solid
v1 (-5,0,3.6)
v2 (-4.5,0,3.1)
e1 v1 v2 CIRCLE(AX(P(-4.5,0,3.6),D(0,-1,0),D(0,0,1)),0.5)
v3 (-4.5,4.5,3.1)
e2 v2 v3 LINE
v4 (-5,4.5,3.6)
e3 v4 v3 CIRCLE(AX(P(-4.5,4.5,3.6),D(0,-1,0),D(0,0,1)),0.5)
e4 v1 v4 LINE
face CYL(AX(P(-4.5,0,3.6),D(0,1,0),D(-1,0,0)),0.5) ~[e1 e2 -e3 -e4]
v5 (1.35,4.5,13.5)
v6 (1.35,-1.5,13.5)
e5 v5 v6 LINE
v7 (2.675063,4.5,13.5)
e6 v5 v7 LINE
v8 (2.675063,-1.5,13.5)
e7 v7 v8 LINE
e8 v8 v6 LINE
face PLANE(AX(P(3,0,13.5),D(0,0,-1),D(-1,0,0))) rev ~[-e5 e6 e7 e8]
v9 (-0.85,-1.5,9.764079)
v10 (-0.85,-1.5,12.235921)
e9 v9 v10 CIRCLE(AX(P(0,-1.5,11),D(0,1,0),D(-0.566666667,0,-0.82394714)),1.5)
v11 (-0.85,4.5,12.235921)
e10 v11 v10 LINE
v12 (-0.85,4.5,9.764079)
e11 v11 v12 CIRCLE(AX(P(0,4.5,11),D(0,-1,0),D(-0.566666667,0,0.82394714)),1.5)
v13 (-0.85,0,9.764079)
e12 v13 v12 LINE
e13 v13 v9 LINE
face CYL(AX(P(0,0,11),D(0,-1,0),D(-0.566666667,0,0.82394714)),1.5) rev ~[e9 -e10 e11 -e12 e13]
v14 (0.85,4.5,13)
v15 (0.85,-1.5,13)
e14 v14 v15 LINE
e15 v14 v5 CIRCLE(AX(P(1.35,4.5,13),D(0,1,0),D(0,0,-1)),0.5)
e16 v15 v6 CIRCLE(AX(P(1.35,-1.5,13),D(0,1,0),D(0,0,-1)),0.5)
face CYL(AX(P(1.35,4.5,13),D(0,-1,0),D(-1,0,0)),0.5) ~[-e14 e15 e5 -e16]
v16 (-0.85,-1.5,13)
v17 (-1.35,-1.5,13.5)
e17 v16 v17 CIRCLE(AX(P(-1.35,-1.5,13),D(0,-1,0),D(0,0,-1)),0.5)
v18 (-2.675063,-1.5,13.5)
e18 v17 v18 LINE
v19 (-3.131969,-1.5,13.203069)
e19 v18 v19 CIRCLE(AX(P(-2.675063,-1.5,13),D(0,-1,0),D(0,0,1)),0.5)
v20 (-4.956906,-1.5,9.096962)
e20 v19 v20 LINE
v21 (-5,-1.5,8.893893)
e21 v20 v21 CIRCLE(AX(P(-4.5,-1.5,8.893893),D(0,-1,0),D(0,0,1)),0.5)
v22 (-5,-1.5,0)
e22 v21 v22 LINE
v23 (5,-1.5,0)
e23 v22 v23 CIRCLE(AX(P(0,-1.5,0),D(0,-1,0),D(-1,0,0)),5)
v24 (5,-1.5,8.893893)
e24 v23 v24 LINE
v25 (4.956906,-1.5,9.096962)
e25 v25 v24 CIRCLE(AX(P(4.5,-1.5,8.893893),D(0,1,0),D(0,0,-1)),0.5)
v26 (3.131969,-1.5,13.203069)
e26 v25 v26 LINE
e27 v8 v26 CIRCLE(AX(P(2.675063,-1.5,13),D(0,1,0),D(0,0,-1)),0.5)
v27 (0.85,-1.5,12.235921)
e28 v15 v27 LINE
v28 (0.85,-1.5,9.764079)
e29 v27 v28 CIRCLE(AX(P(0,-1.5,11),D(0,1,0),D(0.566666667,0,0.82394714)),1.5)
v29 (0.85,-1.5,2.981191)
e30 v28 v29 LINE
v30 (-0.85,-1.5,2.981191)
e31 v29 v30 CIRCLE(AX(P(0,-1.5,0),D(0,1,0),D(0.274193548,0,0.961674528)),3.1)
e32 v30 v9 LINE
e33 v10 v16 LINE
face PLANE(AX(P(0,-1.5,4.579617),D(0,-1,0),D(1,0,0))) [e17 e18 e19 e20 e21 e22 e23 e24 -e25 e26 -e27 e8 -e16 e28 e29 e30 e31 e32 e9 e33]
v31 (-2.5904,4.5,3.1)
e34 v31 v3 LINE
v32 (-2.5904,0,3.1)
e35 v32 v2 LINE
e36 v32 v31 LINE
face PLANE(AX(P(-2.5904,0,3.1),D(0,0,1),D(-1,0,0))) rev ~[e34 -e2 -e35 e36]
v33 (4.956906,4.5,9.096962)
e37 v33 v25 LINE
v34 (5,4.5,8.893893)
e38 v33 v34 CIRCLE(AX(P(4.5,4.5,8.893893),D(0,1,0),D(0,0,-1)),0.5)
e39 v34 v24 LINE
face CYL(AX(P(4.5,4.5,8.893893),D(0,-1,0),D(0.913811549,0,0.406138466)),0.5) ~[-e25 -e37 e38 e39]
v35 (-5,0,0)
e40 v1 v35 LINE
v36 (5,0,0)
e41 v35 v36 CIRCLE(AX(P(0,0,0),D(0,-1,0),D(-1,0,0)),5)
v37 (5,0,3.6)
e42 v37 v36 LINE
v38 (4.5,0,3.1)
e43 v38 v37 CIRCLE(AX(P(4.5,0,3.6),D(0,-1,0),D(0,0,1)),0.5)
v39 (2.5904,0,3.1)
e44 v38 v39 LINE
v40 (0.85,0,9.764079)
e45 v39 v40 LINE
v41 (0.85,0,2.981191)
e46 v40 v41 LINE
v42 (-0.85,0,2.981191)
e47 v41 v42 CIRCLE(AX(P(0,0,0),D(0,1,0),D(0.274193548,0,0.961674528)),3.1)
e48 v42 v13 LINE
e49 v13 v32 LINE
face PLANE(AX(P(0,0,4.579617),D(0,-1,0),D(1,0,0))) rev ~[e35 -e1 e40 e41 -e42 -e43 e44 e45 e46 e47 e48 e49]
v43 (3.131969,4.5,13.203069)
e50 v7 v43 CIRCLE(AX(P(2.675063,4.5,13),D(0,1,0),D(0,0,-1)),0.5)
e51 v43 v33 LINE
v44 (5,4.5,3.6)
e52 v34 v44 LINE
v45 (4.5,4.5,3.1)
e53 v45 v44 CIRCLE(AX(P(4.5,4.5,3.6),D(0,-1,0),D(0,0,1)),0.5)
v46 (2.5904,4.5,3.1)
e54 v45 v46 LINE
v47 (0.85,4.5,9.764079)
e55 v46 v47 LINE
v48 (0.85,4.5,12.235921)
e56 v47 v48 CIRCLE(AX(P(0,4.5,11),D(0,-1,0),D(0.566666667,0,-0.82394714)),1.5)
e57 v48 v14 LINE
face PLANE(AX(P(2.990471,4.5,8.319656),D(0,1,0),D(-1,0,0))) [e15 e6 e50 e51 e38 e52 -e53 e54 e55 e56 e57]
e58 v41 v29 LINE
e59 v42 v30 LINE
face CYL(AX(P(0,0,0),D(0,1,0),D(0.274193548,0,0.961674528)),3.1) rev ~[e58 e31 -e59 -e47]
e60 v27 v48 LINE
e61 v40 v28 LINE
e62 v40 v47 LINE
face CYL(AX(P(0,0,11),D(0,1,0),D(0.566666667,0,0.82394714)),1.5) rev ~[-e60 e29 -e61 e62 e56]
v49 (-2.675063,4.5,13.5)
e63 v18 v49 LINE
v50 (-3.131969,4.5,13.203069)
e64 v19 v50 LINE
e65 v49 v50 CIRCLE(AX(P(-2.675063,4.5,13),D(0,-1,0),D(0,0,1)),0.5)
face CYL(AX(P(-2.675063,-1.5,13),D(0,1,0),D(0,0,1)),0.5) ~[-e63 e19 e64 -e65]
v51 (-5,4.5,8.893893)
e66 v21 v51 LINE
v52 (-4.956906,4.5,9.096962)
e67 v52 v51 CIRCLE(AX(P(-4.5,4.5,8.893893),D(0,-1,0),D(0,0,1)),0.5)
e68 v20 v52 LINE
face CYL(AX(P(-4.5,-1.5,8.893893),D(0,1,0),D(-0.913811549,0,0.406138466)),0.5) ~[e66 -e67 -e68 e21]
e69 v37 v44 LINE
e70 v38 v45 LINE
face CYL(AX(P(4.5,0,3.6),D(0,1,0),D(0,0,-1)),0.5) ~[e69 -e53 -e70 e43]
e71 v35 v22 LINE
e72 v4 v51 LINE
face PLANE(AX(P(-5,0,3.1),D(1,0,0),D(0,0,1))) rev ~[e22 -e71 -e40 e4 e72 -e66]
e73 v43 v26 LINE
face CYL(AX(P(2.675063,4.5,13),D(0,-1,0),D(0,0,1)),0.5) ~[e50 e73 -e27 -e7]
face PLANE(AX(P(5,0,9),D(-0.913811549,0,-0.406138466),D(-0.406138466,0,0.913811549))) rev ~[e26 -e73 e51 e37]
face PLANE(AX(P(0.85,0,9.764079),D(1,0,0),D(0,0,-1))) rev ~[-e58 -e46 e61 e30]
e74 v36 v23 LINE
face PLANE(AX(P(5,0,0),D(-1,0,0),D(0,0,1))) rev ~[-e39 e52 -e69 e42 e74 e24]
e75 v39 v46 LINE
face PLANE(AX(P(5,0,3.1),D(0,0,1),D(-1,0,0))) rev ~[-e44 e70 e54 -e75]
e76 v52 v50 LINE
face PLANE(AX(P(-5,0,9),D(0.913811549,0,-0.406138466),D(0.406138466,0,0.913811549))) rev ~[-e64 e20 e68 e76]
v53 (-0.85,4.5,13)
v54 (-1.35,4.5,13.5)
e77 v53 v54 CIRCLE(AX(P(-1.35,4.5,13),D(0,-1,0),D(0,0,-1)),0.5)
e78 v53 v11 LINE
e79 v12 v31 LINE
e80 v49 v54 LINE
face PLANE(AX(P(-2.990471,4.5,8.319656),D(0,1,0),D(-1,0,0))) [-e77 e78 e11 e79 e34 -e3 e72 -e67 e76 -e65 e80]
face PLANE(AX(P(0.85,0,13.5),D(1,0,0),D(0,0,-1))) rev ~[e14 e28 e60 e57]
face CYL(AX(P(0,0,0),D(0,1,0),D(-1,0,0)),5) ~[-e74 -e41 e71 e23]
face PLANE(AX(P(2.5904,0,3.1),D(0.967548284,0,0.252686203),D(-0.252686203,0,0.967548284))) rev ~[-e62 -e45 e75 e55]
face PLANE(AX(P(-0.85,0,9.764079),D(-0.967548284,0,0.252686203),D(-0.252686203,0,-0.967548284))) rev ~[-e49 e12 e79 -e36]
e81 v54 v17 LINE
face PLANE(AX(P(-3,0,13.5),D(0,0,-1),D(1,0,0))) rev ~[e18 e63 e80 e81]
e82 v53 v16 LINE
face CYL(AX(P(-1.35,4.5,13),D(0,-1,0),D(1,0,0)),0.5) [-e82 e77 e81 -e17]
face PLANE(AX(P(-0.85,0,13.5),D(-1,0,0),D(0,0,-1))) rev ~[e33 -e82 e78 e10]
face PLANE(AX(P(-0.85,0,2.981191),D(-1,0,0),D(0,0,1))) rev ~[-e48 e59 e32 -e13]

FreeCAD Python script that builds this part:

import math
import FreeCAD as App
import Part
import Sketcher
from FreeCAD import Vector


def edges_at(feature, points):
    """Names of the edges that pass closest to the given points."""
    edges = feature.Shape.Edges
    near = lambda p: min(range(len(edges)), key=lambda i: edges[i].distToShape(Part.Vertex(*p))[0])
    return sorted({f"Edge{near(p) + 1}" for p in points})

doc = App.newDocument("Part")
body = doc.addObject("PartDesign::Body", "Body")

# Sketch on XZ plane
sketch1 = body.newObject("Sketcher::SketchObject", "Sketch")
sketch1.AttachmentSupport = (doc.getObject("XZ_Plane"), [""])
sketch1.MapMode = "FlatFace"
sketch1.addGeometry(Part.ArcOfCircle(Part.Circle(Vector(0, 0, 0), Vector(0, 0, 1), 3.1), math.radians(106), math.radians(434)), False)
sketch1.addGeometry(Part.LineSegment(Vector(-0.8, 3, 0), Vector(-0.8, 9.8, 0)), False)
sketch1.addGeometry(Part.ArcOfCircle(Part.Circle(Vector(0, 11, 0), Vector(0, 0, 1), 1.5), math.radians(125), math.radians(235)), False)
sketch1.addGeometry(Part.LineSegment(Vector(-0.8, 12.2, 0), Vector(-0.8, 13.5, 0)), False)
sketch1.addGeometry(Part.LineSegment(Vector(-0.8, 13.5, 0), Vector(-3, 13.5, 0)), False)
sketch1.addGeometry(Part.LineSegment(Vector(-3, 13.5, 0), Vector(-5, 9, 0)), False)
sketch1.addGeometry(Part.LineSegment(Vector(-5, 9, 0), Vector(-5, 0, 0)), False)
sketch1.addGeometry(Part.ArcOfCircle(Part.Circle(Vector(0, 0, 0), Vector(0, 0, 1), 5), math.radians(180), math.radians(360)), False)
sketch1.addGeometry(Part.LineSegment(Vector(5, 0, 0), Vector(5, 9, 0)), False)
sketch1.addGeometry(Part.LineSegment(Vector(5, 9, 0), Vector(3, 13.5, 0)), False)
sketch1.addGeometry(Part.LineSegment(Vector(3, 13.5, 0), Vector(0.8, 13.5, 0)), False)
sketch1.addGeometry(Part.LineSegment(Vector(0.8, 13.5, 0), Vector(0.8, 12.2, 0)), False)
sketch1.addGeometry(Part.ArcOfCircle(Part.Circle(Vector(0, 11, 0), Vector(0, 0, 1), 1.5), math.radians(-55), math.radians(55)), False)
sketch1.addGeometry(Part.LineSegment(Vector(0.8, 9.8, 0), Vector(0.8, 3, 0)), False)
sketch1.addConstraint(Sketcher.Constraint("Coincident", 0, 1, 1, 1))
sketch1.addConstraint(Sketcher.Constraint("Coincident", 1, 2, 2, 2))
sketch1.addConstraint(Sketcher.Constraint("Coincident", 2, 1, 3, 1))
sketch1.addConstraint(Sketcher.Constraint("Coincident", 3, 2, 4, 1))
sketch1.addConstraint(Sketcher.Constraint("Coincident", 4, 2, 5, 1))
sketch1.addConstraint(Sketcher.Constraint("Coincident", 5, 2, 6, 1))
sketch1.addConstraint(Sketcher.Constraint("Tangent", 6, 2, 7, 1))
sketch1.addConstraint(Sketcher.Constraint("Tangent", 7, 2, 8, 1))
sketch1.addConstraint(Sketcher.Constraint("Coincident", 8, 2, 9, 1))
sketch1.addConstraint(Sketcher.Constraint("Coincident", 9, 2, 10, 1))
sketch1.addConstraint(Sketcher.Constraint("Coincident", 10, 2, 11, 1))
sketch1.addConstraint(Sketcher.Constraint("Coincident", 11, 2, 12, 2))
sketch1.addConstraint(Sketcher.Constraint("Coincident", 12, 1, 13, 1))
sketch1.addConstraint(Sketcher.Constraint("Coincident", 13, 2, 0, 2))
sketch1.addConstraint(Sketcher.Constraint("Vertical", 1))
sketch1.addConstraint(Sketcher.Constraint("Vertical", 3))
sketch1.addConstraint(Sketcher.Constraint("Horizontal", 4))
sketch1.addConstraint(Sketcher.Constraint("Vertical", 6))
sketch1.addConstraint(Sketcher.Constraint("Vertical", 8))
sketch1.addConstraint(Sketcher.Constraint("Horizontal", 10))
sketch1.addConstraint(Sketcher.Constraint("Vertical", 11))
sketch1.addConstraint(Sketcher.Constraint("Vertical", 13))
sketch1.addConstraint(Sketcher.Constraint("Coincident", 0, 3, -1, 1))
sketch1.addConstraint(Sketcher.Constraint("Coincident", 7, 3, -1, 1))
sketch1.addConstraint(Sketcher.Constraint("Coincident", 12, 3, 2, 3))
sketch1.addConstraint(Sketcher.Constraint("Equal", 2, 12))
sketch1.addConstraint(Sketcher.Constraint("Symmetric", 4, 2, 9, 2, -2))
sketch1.addConstraint(Sketcher.Constraint("Symmetric", 2, 1, 11, 2, -2))
sketch1.addConstraint(Sketcher.Constraint("Horizontal", 5, 2, 8, 2))
sketch1.addConstraint(Sketcher.Constraint("Horizontal", 1, 2, 12, 1))
sketch1.addConstraint(Sketcher.Constraint("Vertical", 1, 2, 2, 1))
sketch1.addConstraint(Sketcher.Constraint("Radius", 7, 5.0))
sketch1.addConstraint(Sketcher.Constraint("Radius", 0, 3.1))
sketch1.addConstraint(Sketcher.Constraint("Radius", 2, 1.5))
sketch1.addConstraint(Sketcher.Constraint("DistanceY", 6, 2, 6, 1, 9.0))
sketch1.addConstraint(Sketcher.Constraint("DistanceY", -1, 1, 2, 3, 11.0))
sketch1.addConstraint(Sketcher.Constraint("DistanceX", 4, 2, -1, 1, 3.0))
sketch1.addConstraint(Sketcher.Constraint("DistanceX", 4, 2, 4, 1, 2.15))
sketch1.addConstraint(Sketcher.Constraint("DistanceY", -1, 1, 3, 2, 13.5))
pad1 = body.newObject("PartDesign::Pad", "Pad")
pad1.Profile = sketch1
pad1.Length = 1.5

# Sketch on XZ plane
sketch2 = body.newObject("Sketcher::SketchObject", "Sketch001")
sketch2.AttachmentSupport = (doc.getObject("XZ_Plane"), [""])
sketch2.MapMode = "FlatFace"
sketch2.addGeometry(Part.LineSegment(Vector(-0.8, 9.8, 0), Vector(-2.6, 3.1, 0)), False)
sketch2.addGeometry(Part.LineSegment(Vector(-2.6, 3.1, 0), Vector(-5, 3.1, 0)), False)
sketch2.addGeometry(Part.LineSegment(Vector(-5, 3.1, 0), Vector(-5, 9, 0)), False)
sketch2.addGeometry(Part.LineSegment(Vector(-5, 9, 0), Vector(-3, 13.5, 0)), False)
sketch2.addGeometry(Part.LineSegment(Vector(-3, 13.5, 0), Vector(-0.8, 13.5, 0)), False)
sketch2.addGeometry(Part.LineSegment(Vector(-0.8, 13.5, 0), Vector(-0.8, 12.2, 0)), False)
sketch2.addGeometry(Part.ArcOfCircle(Part.Circle(Vector(0, 11, 0), Vector(0, 0, 1), 1.5), math.radians(125), math.radians(235)), False)
sketch2.addGeometry(Part.LineSegment(Vector(5, 3.1, 0), Vector(2.6, 3.1, 0)), False)
sketch2.addGeometry(Part.LineSegment(Vector(2.6, 3.1, 0), Vector(0.8, 9.8, 0)), False)
sketch2.addGeometry(Part.ArcOfCircle(Part.Circle(Vector(0, 11, 0), Vector(0, 0, 1), 1.5), math.radians(-55), math.radians(55)), False)
sketch2.addGeometry(Part.LineSegment(Vector(0.8, 12.2, 0), Vector(0.8, 13.5, 0)), False)
sketch2.addGeometry(Part.LineSegment(Vector(0.8, 13.5, 0), Vector(3, 13.5, 0)), False)
sketch2.addGeometry(Part.LineSegment(Vector(3, 13.5, 0), Vector(5, 9, 0)), False)
sketch2.addGeometry(Part.LineSegment(Vector(5, 9, 0), Vector(5, 3.1, 0)), False)
sketch2.addConstraint(Sketcher.Constraint("Coincident", 0, 2, 1, 1))
sketch2.addConstraint(Sketcher.Constraint("Coincident", 1, 2, 2, 1))
sketch2.addConstraint(Sketcher.Constraint("Coincident", 2, 2, 3, 1))
sketch2.addConstraint(Sketcher.Constraint("Coincident", 3, 2, 4, 1))
sketch2.addConstraint(Sketcher.Constraint("Coincident", 4, 2, 5, 1))
sketch2.addConstraint(Sketcher.Constraint("Coincident", 5, 2, 6, 1))
sketch2.addConstraint(Sketcher.Constraint("Coincident", 6, 2, 0, 1))
sketch2.addConstraint(Sketcher.Constraint("Coincident", 7, 2, 8, 1))
sketch2.addConstraint(Sketcher.Constraint("Coincident", 8, 2, 9, 1))
sketch2.addConstraint(Sketcher.Constraint("Coincident", 9, 2, 10, 1))
sketch2.addConstraint(Sketcher.Constraint("Coincident", 10, 2, 11, 1))
sketch2.addConstraint(Sketcher.Constraint("Coincident", 11, 2, 12, 1))
sketch2.addConstraint(Sketcher.Constraint("Coincident", 12, 2, 13, 1))
sketch2.addConstraint(Sketcher.Constraint("Coincident", 13, 2, 7, 1))
sketch2.addConstraint(Sketcher.Constraint("Horizontal", 1))
sketch2.addConstraint(Sketcher.Constraint("Vertical", 2))
sketch2.addConstraint(Sketcher.Constraint("Horizontal", 4))
sketch2.addConstraint(Sketcher.Constraint("Vertical", 5))
sketch2.addConstraint(Sketcher.Constraint("Horizontal", 7))
sketch2.addConstraint(Sketcher.Constraint("Vertical", 10))
sketch2.addConstraint(Sketcher.Constraint("Horizontal", 11))
sketch2.addConstraint(Sketcher.Constraint("Vertical", 13))
sketch2.addConstraint(Sketcher.Constraint("Coincident", 9, 3, 6, 3))
sketch2.addConstraint(Sketcher.Constraint("Equal", 6, 9))
sketch2.addConstraint(Sketcher.Constraint("Symmetric", 0, 2, 7, 2, -2))
sketch2.addConstraint(Sketcher.Constraint("Symmetric", 6, 2, 8, 2, -2))
sketch2.addConstraint(Sketcher.Constraint("Symmetric", 4, 2, 10, 2, -2))
sketch2.addConstraint(Sketcher.Constraint("Symmetric", 2, 2, 12, 2, -2))
sketch2.addConstraint(Sketcher.Constraint("Vertical", 5, 2, 6, 2))
sketch2.addConstraint(Sketcher.Constraint("Equal", 4, 11))
sketch2.addConstraint(Sketcher.Constraint("Radius", 6, 1.5))
sketch2.addConstraint(Sketcher.Constraint("DistanceY", 2, 1, 2, 2, 5.9))
sketch2.addConstraint(Sketcher.Constraint("DistanceY", -1, 1, 6, 3, 11.0))
sketch2.addConstraint(Sketcher.Constraint("DistanceX", 1, 2, -1, 1, 5.0))
sketch2.addConstraint(Sketcher.Constraint("DistanceY", -1, 1, 2, 2, 9.0))
sketch2.addConstraint(Sketcher.Constraint("DistanceX", 3, 2, -1, 1, 3.0))
sketch2.addConstraint(Sketcher.Constraint("DistanceX", 4, 1, 4, 2, 2.15))
sketch2.addConstraint(Sketcher.Constraint("DistanceY", -1, 1, 3, 2, 13.5))
sketch2.addConstraint(Sketcher.Constraint("DistanceX", 1, 2, 1, 1, 2.4096))
pad2 = body.newObject("PartDesign::Pad", "Pad001")
pad2.Profile = sketch2
pad2.Length = 4.5
pad2.Reversed = True
doc.recompute()

fillet = body.newObject("PartDesign::Fillet", "Fillet")
fillet.Base = (pad2, edges_at(pad2, [
    (3, 1.5, 13.5),
    (5, 1.5, 9),
    (-3, 1.5, 13.5),
    (-5, 1.5, 9),
    (0.85, 1.5, 13.5),
    (-0.85, 1.5, 13.5),
    (5, 2.25, 3.1),
    (-5, 2.25, 3.1),
]))
fillet.Radius = 0.5

doc.recompute()
